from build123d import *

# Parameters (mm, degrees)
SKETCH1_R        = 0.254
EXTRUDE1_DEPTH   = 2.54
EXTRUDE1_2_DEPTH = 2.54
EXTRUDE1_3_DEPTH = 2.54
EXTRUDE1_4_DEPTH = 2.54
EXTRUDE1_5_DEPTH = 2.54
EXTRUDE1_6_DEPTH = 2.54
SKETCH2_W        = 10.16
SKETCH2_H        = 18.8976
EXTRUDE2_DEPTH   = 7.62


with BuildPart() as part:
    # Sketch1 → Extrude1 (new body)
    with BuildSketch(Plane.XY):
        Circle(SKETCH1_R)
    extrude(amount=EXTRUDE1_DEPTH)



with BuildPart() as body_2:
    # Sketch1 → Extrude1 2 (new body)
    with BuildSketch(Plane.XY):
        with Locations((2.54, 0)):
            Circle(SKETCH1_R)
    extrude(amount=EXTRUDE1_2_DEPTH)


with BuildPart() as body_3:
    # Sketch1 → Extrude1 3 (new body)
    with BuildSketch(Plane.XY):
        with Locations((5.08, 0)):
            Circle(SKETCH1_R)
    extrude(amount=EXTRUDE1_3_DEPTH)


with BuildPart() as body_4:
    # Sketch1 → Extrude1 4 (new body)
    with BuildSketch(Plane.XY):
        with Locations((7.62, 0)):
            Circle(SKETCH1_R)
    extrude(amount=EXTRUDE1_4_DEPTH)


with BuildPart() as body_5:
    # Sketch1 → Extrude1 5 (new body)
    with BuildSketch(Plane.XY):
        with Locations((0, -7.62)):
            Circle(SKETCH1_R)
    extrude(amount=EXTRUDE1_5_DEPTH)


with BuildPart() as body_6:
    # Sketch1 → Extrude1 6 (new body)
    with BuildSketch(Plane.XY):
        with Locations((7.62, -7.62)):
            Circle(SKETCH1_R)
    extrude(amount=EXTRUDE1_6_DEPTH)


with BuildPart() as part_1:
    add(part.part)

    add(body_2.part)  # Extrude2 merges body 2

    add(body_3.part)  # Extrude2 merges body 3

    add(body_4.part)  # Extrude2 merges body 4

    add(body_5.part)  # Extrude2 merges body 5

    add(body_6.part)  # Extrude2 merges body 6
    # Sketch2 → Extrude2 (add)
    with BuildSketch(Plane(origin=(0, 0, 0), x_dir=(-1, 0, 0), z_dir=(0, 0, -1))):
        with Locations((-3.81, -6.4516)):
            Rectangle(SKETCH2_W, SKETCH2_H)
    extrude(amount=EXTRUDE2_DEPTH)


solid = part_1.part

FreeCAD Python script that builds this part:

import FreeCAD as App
import Part
import Sketcher

V = App.Vector
Q = App.Units.Quantity


def add_polygon(sketch, points):
    """Adds a closed chain of lines whose ends are joined by coincident constraints."""
    first, n = sketch.GeometryCount, len(points)
    for a, b in zip(points, points[1:] + points[:1]):
        sketch.addGeometry(Part.LineSegment(App.Vector(*a, 0), App.Vector(*b, 0)), False)
    for i in range(n):
        sketch.addConstraint(Sketcher.Constraint("Coincident", first + i, 2, first + (i + 1) % n, 1))

doc = App.newDocument("Part")
params = doc.addObject("Spreadsheet::Sheet", "Params")
for row, (alias, value) in enumerate([
    ("sketch1_diameter", "0.02 in"),
    ("pad1_length", "0.1 in"),
    ("sketch2_diameter", "0.02 in"),
    ("pad2_length", "0.1 in"),
    ("sketch3_diameter", "0.02 in"),
    ("pad3_length", "0.1 in"),
    ("sketch4_diameter", "0.02 in"),
    ("pad4_length", "0.1 in"),
    ("sketch5_diameter", "0.02 in"),
    ("pad5_length", "0.1 in"),
    ("sketch6_diameter", "0.02 in"),
    ("pad6_length", "0.1 in"),
    ("sketch7_width", "0.4 in"),
    ("sketch7_height", "0.744 in"),
    ("pad7_length", "0.3 in"),
], start=1):
    params.set(f"A{row}", alias)
    params.set(f"B{row}", "=" + value)
    params.setAlias(f"B{row}", alias)

body = doc.addObject("PartDesign::Body", "Body")

# Sketch on XY plane
sketch1 = doc.addObject("Sketcher::SketchObject", "Sketch")
body.addObject(sketch1)
sketch1.AttachmentSupport = (doc.XY_Plane, [""])
sketch1.MapMode = "FlatFace"
sketch1.addGeometry(Part.Circle(V(0, 0, 0), V(0, 0, 1), 0.254), False)
sketch1.addConstraint(Sketcher.Constraint("Coincident", 0, 3, -1, 1))
sketch1.addConstraint(Sketcher.Constraint("Diameter", 0, Q("0.02 in")))
sketch1.setExpression("Constraints[1]", "Params.sketch1_diameter")
pad1 = doc.addObject("PartDesign::Pad", "Pad")
body.addObject(pad1)
pad1.Profile = sketch1
pad1.setExpression("Length", "Params.pad1_length")
body2 = doc.addObject("PartDesign::Body", "Body001")

# Sketch on XY plane
sketch2 = doc.addObject("Sketcher::SketchObject", "Sketch001")
body2.addObject(sketch2)
sketch2.AttachmentSupport = (doc.getObject("XY_Plane001"), [""])
sketch2.MapMode = "FlatFace"
sketch2.addGeometry(Part.Circle(V(2.54, 0, 0), V(0, 0, 1), 0.254), False)
sketch2.addConstraint(Sketcher.Constraint("PointOnObject", 0, 3, -1))
sketch2.addConstraint(Sketcher.Constraint("Diameter", 0, Q("0.02 in")))
sketch2.addConstraint(Sketcher.Constraint("DistanceX", -1, 1, 0, 3, Q("0.1 in")))
sketch2.setExpression("Constraints[1]", "Params.sketch2_diameter")
pad2 = doc.addObject("PartDesign::Pad", "Pad001")
body2.addObject(pad2)
pad2.Profile = sketch2
pad2.setExpression("Length", "Params.pad2_length")
body3 = doc.addObject("PartDesign::Body", "Body002")

# Sketch on XY plane
sketch3 = doc.addObject("Sketcher::SketchObject", "Sketch002")
body3.addObject(sketch3)
sketch3.AttachmentSupport = (doc.getObject("XY_Plane002"), [""])
sketch3.MapMode = "FlatFace"
sketch3.addGeometry(Part.Circle(V(5.08, 0, 0), V(0, 0, 1), 0.254), False)
sketch3.addConstraint(Sketcher.Constraint("PointOnObject", 0, 3, -1))
sketch3.addConstraint(Sketcher.Constraint("Diameter", 0, Q("0.02 in")))
sketch3.addConstraint(Sketcher.Constraint("DistanceX", -1, 1, 0, 3, Q("0.2 in")))
sketch3.setExpression("Constraints[1]", "Params.sketch3_diameter")
pad3 = doc.addObject("PartDesign::Pad", "Pad002")
body3.addObject(pad3)
pad3.Profile = sketch3
pad3.setExpression("Length", "Params.pad3_length")
body4 = doc.addObject("PartDesign::Body", "Body003")

# Sketch on XY plane
sketch4 = doc.addObject("Sketcher::SketchObject", "Sketch003")
body4.addObject(sketch4)
sketch4.AttachmentSupport = (doc.getObject("XY_Plane003"), [""])
sketch4.MapMode = "FlatFace"
sketch4.addGeometry(Part.Circle(V(7.62, 0, 0), V(0, 0, 1), 0.254), False)
sketch4.addConstraint(Sketcher.Constraint("PointOnObject", 0, 3, -1))
sketch4.addConstraint(Sketcher.Constraint("Diameter", 0, Q("0.02 in")))
sketch4.addConstraint(Sketcher.Constraint("DistanceX", -1, 1, 0, 3, Q("0.3 in")))
sketch4.setExpression("Constraints[1]", "Params.sketch4_diameter")
pad4 = doc.addObject("PartDesign::Pad", "Pad003")
body4.addObject(pad4)
pad4.Profile = sketch4
pad4.setExpression("Length", "Params.pad4_length")
body5 = doc.addObject("PartDesign::Body", "Body004")

# Sketch on XY plane
sketch5 = doc.addObject("Sketcher::SketchObject", "Sketch004")
body5.addObject(sketch5)
sketch5.AttachmentSupport = (doc.getObject("XY_Plane004"), [""])
sketch5.MapMode = "FlatFace"
sketch5.addGeometry(Part.Circle(V(0, -7.62, 0), V(0, 0, 1), 0.254), False)
sketch5.addConstraint(Sketcher.Constraint("PointOnObject", 0, 3, -2))
sketch5.addConstraint(Sketcher.Constraint("Diameter", 0, Q("0.02 in")))
sketch5.addConstraint(Sketcher.Constraint("DistanceY", 0, 3, -1, 1, Q("0.3 in")))
sketch5.setExpression("Constraints[1]", "Params.sketch5_diameter")
pad5 = doc.addObject("PartDesign::Pad", "Pad004")
body5.addObject(pad5)
pad5.Profile = sketch5
pad5.setExpression("Length", "Params.pad5_length")
body6 = doc.addObject("PartDesign::Body", "Body005")

# Sketch on XY plane
sketch6 = doc.addObject("Sketcher::SketchObject", "Sketch005")
body6.addObject(sketch6)
sketch6.AttachmentSupport = (doc.getObject("XY_Plane005"), [""])
sketch6.MapMode = "FlatFace"
sketch6.addGeometry(Part.Circle(V(7.62, -7.62, 0), V(0, 0, 1), 0.254), False)
sketch6.addConstraint(Sketcher.Constraint("Diameter", 0, Q("0.02 in")))
sketch6.addConstraint(Sketcher.Constraint("DistanceX", -1, 1, 0, 3, Q("0.3 in")))
sketch6.addConstraint(Sketcher.Constraint("DistanceY", 0, 3, -1, 1, Q("0.3 in")))
sketch6.setExpression("Constraints[0]", "Params.sketch6_diameter")
pad6 = doc.addObject("PartDesign::Pad", "Pad005")
body6.addObject(pad6)
pad6.Profile = sketch6
pad6.setExpression("Length", "Params.pad6_length")
body.AllowCompound = True
doc.recompute()

boolean = doc.addObject("PartDesign::Boolean", "Boolean")
body.addObject(boolean)
boolean.Type = "Fuse"
boolean.addObjects([body2])
doc.recompute()

boolean2 = doc.addObject("PartDesign::Boolean", "Boolean001")
body.addObject(boolean2)
boolean2.Type = "Fuse"
boolean2.addObjects([body3])
doc.recompute()

boolean3 = doc.addObject("PartDesign::Boolean", "Boolean002")
body.addObject(boolean3)
boolean3.Type = "Fuse"
boolean3.addObjects([body4])
doc.recompute()

boolean4 = doc.addObject("PartDesign::Boolean", "Boolean003")
body.addObject(boolean4)
boolean4.Type = "Fuse"
boolean4.addObjects([body5])
doc.recompute()

boolean5 = doc.addObject("PartDesign::Boolean", "Boolean004")
body.addObject(boolean5)
boolean5.Type = "Fuse"
boolean5.addObjects([body6])

# Sketch on XY plane
sketch7 = doc.addObject("Sketcher::SketchObject", "Sketch006")
body.addObject(sketch7)
sketch7.AttachmentSupport = (doc.XY_Plane, [""])
sketch7.MapMode = "FlatFace"
add_polygon(sketch7, [(8.89, 2.9972), (8.89, -15.9004), (-1.27, -15.9004), (-1.27, 2.9972)])  # lines 0-3
sketch7.addConstraint(Sketcher.Constraint("Vertical", 0))
sketch7.addConstraint(Sketcher.Constraint("Horizontal", 1))
sketch7.addConstraint(Sketcher.Constraint("Vertical", 2))
sketch7.addConstraint(Sketcher.Constraint("Horizontal", 3))
sketch7.addConstraint(Sketcher.Constraint("DistanceX", 1, 2, 1, 1, Q("0.4 in")))
sketch7.addConstraint(Sketcher.Constraint("DistanceY", 0, 2, 0, 1, Q("0.744 in")))
sketch7.addConstraint(Sketcher.Constraint("DistanceX", -1, 1, 0, 2, Q("0.35 in")))
sketch7.addConstraint(Sketcher.Constraint("DistanceY", 0, 2, -1, 1, Q("0.626 in")))
sketch7.setExpression("Constraints[8]", "Params.sketch7_width")
sketch7.setExpression("Constraints[9]", "Params.sketch7_height")
pad7 = doc.addObject("PartDesign::Pad", "Pad006")
body.addObject(pad7)
pad7.Profile = sketch7
pad7.setExpression("Length", "Params.pad7_length")
pad7.Reversed = True

doc.recompute()
